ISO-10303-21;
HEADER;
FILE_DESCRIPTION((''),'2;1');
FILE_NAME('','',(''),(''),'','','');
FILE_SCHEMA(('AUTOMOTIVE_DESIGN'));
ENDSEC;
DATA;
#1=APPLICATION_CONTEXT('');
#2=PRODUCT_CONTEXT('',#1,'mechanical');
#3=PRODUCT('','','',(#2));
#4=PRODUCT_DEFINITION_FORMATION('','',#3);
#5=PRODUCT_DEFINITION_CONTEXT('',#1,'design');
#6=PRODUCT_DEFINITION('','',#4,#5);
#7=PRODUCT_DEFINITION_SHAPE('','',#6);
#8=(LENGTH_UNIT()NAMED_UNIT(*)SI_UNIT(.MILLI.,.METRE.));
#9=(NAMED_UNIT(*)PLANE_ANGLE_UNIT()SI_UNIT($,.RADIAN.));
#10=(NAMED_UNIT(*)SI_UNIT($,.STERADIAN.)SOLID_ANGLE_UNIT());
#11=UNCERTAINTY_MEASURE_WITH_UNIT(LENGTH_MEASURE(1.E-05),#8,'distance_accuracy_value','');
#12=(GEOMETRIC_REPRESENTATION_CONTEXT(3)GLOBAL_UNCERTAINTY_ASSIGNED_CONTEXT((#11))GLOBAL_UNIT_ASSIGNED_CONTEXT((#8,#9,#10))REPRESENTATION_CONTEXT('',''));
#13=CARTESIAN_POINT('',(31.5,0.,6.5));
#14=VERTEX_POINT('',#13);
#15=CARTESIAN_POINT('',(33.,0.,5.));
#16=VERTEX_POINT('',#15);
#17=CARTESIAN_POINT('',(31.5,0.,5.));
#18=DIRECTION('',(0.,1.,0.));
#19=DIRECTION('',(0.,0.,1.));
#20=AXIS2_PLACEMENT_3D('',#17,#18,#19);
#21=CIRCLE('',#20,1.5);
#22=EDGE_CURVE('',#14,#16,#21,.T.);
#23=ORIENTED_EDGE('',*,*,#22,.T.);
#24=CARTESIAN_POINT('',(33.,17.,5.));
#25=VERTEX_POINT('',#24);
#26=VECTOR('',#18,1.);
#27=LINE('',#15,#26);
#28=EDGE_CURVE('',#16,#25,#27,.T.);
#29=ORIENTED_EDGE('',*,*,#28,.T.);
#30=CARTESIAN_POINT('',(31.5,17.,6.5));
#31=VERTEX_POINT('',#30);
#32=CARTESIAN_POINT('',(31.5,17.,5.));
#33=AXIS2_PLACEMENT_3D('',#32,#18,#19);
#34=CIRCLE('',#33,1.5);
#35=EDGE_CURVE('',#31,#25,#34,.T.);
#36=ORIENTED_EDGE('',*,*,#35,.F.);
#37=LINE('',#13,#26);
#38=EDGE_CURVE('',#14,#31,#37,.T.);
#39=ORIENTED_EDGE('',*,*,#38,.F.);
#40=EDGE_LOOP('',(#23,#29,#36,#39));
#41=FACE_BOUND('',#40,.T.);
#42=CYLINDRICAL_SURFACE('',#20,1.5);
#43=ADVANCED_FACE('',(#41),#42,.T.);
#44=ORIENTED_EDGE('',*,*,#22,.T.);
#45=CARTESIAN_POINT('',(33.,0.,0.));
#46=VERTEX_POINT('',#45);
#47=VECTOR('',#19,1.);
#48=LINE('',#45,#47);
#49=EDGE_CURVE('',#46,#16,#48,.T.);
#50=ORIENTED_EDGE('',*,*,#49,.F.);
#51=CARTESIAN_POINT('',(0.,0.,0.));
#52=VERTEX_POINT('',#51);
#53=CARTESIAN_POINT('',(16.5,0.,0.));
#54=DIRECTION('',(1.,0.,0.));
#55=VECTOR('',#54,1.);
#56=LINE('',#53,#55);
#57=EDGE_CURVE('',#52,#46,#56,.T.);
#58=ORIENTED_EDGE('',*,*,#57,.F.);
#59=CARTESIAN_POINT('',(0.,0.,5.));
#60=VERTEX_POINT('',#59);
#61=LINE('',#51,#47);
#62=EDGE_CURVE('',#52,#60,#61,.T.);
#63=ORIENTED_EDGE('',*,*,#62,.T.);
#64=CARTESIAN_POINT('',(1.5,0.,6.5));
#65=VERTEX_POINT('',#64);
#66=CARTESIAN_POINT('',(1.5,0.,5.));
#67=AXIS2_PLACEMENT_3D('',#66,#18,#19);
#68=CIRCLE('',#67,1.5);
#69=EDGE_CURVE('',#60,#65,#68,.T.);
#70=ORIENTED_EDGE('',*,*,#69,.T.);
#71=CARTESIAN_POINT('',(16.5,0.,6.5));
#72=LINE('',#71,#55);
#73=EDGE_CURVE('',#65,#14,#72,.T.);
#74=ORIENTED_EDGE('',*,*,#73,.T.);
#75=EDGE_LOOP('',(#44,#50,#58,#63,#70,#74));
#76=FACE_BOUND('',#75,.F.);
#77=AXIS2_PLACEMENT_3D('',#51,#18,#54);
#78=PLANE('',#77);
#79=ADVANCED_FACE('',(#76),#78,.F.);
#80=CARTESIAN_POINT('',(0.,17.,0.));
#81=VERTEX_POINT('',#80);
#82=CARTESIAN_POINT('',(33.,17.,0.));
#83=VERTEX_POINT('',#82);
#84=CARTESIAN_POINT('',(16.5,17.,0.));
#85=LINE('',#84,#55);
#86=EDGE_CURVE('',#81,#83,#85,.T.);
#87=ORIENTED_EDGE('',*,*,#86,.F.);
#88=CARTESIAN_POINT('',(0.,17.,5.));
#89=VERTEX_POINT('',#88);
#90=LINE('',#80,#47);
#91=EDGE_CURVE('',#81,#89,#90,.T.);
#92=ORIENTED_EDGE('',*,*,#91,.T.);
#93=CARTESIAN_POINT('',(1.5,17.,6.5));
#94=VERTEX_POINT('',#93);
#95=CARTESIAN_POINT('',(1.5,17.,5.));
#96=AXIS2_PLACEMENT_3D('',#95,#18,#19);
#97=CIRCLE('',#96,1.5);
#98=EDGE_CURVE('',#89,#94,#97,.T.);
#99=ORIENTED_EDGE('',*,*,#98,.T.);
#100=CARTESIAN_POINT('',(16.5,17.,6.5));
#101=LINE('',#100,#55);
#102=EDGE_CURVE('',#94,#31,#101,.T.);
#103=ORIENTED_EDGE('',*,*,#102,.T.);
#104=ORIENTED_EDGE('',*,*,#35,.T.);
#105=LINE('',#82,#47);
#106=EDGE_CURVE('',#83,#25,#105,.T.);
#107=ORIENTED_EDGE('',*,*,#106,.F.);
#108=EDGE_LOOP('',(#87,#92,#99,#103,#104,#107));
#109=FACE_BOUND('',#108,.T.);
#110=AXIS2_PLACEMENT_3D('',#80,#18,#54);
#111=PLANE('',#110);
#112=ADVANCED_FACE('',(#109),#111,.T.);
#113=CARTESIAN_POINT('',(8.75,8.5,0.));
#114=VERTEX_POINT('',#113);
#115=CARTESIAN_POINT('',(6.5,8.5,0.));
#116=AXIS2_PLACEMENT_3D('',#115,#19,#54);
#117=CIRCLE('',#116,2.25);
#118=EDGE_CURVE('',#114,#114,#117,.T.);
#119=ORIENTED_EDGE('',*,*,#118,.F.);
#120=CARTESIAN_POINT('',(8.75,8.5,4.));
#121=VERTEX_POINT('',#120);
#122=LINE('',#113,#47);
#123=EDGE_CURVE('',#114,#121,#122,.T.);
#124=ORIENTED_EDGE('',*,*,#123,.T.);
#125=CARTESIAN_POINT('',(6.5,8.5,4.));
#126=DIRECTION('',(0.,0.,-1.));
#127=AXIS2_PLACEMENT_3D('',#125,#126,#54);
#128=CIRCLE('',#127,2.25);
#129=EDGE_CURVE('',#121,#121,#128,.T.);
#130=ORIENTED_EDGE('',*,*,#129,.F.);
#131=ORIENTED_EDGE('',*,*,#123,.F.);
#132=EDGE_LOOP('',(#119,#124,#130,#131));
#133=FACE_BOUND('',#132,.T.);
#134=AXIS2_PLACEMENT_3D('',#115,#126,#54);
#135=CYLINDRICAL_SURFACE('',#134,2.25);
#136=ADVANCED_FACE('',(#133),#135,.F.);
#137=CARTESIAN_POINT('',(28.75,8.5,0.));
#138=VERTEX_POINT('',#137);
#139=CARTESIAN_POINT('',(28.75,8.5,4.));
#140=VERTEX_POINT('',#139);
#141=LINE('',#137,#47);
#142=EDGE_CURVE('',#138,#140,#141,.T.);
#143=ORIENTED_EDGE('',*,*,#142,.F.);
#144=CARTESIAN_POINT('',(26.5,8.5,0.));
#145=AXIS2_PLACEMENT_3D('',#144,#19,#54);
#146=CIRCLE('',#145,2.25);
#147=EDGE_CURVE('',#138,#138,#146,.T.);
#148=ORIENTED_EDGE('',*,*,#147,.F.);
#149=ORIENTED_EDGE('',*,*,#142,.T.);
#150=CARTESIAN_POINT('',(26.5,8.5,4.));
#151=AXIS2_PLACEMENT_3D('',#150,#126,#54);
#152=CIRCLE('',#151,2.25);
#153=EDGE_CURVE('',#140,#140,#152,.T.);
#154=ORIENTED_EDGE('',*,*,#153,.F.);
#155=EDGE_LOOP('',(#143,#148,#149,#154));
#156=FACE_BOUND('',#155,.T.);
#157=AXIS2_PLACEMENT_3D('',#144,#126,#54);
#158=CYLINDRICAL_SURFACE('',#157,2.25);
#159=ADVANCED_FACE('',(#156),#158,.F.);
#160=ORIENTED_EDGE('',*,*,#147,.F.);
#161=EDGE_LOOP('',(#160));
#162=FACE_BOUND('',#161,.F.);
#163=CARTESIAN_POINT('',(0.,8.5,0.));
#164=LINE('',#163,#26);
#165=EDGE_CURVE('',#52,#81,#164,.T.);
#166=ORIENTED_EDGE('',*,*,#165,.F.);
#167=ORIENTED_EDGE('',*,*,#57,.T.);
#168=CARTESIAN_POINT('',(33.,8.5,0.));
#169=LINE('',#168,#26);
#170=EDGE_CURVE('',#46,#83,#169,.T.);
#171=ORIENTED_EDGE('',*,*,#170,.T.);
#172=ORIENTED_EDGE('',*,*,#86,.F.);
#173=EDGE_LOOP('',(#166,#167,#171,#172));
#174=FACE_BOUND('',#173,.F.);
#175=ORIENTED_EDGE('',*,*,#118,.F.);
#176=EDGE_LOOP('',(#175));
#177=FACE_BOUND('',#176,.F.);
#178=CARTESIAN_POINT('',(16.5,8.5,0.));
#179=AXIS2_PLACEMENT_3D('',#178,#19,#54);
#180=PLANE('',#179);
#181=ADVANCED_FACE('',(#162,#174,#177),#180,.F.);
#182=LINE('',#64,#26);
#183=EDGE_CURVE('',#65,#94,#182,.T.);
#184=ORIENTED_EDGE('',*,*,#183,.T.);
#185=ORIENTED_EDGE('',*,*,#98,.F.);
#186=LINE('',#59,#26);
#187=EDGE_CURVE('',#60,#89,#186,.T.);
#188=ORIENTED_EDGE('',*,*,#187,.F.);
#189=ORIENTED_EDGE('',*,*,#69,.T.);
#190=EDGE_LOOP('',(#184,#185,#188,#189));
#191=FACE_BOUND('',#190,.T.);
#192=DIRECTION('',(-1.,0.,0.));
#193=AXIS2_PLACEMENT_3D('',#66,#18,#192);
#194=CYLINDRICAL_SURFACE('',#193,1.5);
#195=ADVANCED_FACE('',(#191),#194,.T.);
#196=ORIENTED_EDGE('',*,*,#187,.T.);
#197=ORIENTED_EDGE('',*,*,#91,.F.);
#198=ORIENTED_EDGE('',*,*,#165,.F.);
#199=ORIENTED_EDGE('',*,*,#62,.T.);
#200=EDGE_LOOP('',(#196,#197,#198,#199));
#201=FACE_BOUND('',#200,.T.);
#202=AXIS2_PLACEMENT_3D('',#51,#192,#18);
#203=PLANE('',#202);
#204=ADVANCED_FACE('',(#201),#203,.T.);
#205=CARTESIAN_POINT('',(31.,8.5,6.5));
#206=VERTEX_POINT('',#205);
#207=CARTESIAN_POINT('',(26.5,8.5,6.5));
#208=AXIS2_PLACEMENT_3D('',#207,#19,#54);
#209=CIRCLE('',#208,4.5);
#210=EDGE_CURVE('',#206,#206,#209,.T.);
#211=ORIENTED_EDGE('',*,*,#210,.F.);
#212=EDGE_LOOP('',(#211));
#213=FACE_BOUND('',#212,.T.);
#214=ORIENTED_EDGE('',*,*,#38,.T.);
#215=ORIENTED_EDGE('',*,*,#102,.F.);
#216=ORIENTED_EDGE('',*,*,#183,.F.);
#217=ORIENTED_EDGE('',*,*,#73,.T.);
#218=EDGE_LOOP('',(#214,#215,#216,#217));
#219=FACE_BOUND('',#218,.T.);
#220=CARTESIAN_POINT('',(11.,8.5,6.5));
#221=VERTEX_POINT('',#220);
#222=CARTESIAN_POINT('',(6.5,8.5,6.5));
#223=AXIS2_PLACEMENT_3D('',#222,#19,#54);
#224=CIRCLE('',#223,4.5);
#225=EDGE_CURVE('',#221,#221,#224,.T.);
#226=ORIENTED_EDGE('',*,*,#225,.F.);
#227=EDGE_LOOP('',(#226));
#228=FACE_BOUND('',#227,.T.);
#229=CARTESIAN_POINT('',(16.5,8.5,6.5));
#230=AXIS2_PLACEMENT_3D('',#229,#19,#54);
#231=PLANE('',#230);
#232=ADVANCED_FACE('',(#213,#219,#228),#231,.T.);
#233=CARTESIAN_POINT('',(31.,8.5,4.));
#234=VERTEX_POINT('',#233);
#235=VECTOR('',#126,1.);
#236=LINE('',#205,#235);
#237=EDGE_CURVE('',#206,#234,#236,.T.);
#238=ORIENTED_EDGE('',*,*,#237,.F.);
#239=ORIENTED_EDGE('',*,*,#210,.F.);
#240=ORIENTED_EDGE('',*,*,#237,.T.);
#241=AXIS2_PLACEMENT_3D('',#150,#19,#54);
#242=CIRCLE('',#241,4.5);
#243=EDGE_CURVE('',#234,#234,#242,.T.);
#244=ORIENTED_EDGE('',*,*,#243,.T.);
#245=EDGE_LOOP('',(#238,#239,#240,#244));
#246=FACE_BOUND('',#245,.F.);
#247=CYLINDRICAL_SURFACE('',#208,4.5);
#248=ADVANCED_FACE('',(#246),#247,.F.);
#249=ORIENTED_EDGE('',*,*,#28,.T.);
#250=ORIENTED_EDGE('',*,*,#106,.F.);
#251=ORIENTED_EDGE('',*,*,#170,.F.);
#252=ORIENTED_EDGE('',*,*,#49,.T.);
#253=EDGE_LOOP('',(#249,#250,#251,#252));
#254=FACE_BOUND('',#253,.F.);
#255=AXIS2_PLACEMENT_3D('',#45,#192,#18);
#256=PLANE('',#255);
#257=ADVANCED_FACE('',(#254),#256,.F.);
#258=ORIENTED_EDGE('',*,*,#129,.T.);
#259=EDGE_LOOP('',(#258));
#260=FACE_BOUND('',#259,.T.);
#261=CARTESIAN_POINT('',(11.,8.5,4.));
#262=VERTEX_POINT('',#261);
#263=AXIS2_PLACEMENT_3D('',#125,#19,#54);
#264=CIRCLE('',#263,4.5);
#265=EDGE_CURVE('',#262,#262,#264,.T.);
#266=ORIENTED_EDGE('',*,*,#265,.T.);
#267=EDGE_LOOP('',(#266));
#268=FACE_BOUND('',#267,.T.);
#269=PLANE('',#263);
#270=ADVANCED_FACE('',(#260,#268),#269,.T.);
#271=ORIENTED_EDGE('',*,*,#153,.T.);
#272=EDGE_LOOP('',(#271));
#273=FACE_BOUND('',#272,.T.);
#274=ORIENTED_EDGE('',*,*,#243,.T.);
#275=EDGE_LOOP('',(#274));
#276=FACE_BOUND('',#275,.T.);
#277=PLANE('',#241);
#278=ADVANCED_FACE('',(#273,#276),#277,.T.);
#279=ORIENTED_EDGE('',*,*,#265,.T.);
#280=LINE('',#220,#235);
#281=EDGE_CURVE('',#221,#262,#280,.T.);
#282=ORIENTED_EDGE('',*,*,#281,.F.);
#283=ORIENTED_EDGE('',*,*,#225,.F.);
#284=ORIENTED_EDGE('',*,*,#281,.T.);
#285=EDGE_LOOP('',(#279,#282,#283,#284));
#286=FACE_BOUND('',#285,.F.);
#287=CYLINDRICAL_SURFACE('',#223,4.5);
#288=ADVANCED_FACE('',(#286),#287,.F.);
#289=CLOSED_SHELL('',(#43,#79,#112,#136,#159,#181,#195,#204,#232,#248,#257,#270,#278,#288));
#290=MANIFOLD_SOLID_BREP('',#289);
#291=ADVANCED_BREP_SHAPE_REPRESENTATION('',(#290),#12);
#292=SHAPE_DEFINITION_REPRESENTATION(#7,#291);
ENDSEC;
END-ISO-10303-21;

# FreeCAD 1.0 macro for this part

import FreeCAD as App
import Part
import Sketcher
from FreeCAD import Vector


def edges_at(feature, points):
    """Names of the edges that pass closest to the given points."""
    edges = feature.Shape.Edges
    near = lambda p: min(range(len(edges)), key=lambda i: edges[i].distToShape(Part.Vertex(*p))[0])
    return sorted({f"Edge{near(p) + 1}" for p in points})


def add_polygon(sketch, points):
    """Adds a closed chain of lines whose ends are joined by coincident constraints."""
    first, n = sketch.GeometryCount, len(points)
    for a, b in zip(points, points[1:] + points[:1]):
        sketch.addGeometry(Part.LineSegment(App.Vector(*a, 0), App.Vector(*b, 0)), False)
    for i in range(n):
        sketch.addConstraint(Sketcher.Constraint("Coincident", first + i, 2, first + (i + 1) % n, 1))

doc = App.newDocument("Part")
body = doc.addObject("PartDesign::Body", "Body")

sketch1 = body.newObject("Sketcher::SketchObject", "Sketch")
sketch1.AttachmentSupport = (doc.getObject("XY_Plane"), [""])
sketch1.MapMode = "FlatFace"
add_polygon(sketch1, [(0, 17), (0, 0), (33, 0), (33, 17)])
sketch1.addGeometry(Part.Circle(Vector(6.5, 8.5, 0), Vector(0, 0, 1), 2.25), False)
sketch1.addGeometry(Part.Circle(Vector(26.5, 8.5, 0), Vector(0, 0, 1), 2.25), False)
sketch1.addConstraint(Sketcher.Constraint("Vertical", 0))
sketch1.addConstraint(Sketcher.Constraint("Horizontal", 1))
sketch1.addConstraint(Sketcher.Constraint("Vertical", 2))
sketch1.addConstraint(Sketcher.Constraint("Horizontal", 3))
sketch1.addConstraint(Sketcher.Constraint("Coincident", 0, 2, -1, 1))
sketch1.addConstraint(Sketcher.Constraint("Equal", 4, 5))
sketch1.addConstraint(Sketcher.Constraint("Horizontal", 4, 3, 5, 3))
sketch1.addConstraint(Sketcher.Constraint("Diameter", 4, 4.5))
sketch1.addConstraint(Sketcher.Constraint("DistanceX", 1, 1, 1, 2, 33.0))
sketch1.addConstraint(Sketcher.Constraint("DistanceY", 0, 2, 0, 1, 17.0))
sketch1.addConstraint(Sketcher.Constraint("DistanceX", 4, 3, 5, 3, 20.0))
sketch1.addConstraint(Sketcher.Constraint("DistanceX", -1, 1, 4, 3, 6.5))
sketch1.addConstraint(Sketcher.Constraint("DistanceY", -1, 1, 4, 3, 8.5))
pad1 = body.newObject("PartDesign::Pad", "Pad")
pad1.Profile = sketch1
pad1.Length = 6.5

sketch2 = body.newObject("Sketcher::SketchObject", "Sketch001")
sketch2.AttachmentSupport = (doc.getObject("XY_Plane"), [""])
sketch2.MapMode = "FlatFace"
sketch2.AttachmentOffset = App.Placement(Vector(0, 0, 6.5), App.Rotation())
sketch2.addGeometry(Part.Circle(Vector(6.5, 8.5, 0), Vector(0, 0, 1), 4.5), False)
sketch2.addGeometry(Part.Circle(Vector(26.5, 8.5, 0), Vector(0, 0, 1), 4.5), False)
sketch2.addConstraint(Sketcher.Constraint("Equal", 0, 1))
sketch2.addConstraint(Sketcher.Constraint("Horizontal", 0, 3, 1, 3))
sketch2.addConstraint(Sketcher.Constraint("Diameter", 0, 9.0))
sketch2.addConstraint(Sketcher.Constraint("DistanceX", 0, 3, 1, 3, 20.0))
sketch2.addConstraint(Sketcher.Constraint("DistanceX", -1, 1, 0, 3, 6.5))
sketch2.addConstraint(Sketcher.Constraint("DistanceY", -1, 1, 0, 3, 8.5))
pocket1 = body.newObject("PartDesign::Pocket", "Pocket")
pocket1.Profile = sketch2
pocket1.Length = 2.5
doc.recompute()

fillet = body.newObject("PartDesign::Fillet", "Fillet")
fillet.Base = (pocket1, edges_at(pocket1, [(33, 8.5, 6.5), (0, 8.5, 6.5)]))
fillet.Radius = 1.5

doc.recompute()
